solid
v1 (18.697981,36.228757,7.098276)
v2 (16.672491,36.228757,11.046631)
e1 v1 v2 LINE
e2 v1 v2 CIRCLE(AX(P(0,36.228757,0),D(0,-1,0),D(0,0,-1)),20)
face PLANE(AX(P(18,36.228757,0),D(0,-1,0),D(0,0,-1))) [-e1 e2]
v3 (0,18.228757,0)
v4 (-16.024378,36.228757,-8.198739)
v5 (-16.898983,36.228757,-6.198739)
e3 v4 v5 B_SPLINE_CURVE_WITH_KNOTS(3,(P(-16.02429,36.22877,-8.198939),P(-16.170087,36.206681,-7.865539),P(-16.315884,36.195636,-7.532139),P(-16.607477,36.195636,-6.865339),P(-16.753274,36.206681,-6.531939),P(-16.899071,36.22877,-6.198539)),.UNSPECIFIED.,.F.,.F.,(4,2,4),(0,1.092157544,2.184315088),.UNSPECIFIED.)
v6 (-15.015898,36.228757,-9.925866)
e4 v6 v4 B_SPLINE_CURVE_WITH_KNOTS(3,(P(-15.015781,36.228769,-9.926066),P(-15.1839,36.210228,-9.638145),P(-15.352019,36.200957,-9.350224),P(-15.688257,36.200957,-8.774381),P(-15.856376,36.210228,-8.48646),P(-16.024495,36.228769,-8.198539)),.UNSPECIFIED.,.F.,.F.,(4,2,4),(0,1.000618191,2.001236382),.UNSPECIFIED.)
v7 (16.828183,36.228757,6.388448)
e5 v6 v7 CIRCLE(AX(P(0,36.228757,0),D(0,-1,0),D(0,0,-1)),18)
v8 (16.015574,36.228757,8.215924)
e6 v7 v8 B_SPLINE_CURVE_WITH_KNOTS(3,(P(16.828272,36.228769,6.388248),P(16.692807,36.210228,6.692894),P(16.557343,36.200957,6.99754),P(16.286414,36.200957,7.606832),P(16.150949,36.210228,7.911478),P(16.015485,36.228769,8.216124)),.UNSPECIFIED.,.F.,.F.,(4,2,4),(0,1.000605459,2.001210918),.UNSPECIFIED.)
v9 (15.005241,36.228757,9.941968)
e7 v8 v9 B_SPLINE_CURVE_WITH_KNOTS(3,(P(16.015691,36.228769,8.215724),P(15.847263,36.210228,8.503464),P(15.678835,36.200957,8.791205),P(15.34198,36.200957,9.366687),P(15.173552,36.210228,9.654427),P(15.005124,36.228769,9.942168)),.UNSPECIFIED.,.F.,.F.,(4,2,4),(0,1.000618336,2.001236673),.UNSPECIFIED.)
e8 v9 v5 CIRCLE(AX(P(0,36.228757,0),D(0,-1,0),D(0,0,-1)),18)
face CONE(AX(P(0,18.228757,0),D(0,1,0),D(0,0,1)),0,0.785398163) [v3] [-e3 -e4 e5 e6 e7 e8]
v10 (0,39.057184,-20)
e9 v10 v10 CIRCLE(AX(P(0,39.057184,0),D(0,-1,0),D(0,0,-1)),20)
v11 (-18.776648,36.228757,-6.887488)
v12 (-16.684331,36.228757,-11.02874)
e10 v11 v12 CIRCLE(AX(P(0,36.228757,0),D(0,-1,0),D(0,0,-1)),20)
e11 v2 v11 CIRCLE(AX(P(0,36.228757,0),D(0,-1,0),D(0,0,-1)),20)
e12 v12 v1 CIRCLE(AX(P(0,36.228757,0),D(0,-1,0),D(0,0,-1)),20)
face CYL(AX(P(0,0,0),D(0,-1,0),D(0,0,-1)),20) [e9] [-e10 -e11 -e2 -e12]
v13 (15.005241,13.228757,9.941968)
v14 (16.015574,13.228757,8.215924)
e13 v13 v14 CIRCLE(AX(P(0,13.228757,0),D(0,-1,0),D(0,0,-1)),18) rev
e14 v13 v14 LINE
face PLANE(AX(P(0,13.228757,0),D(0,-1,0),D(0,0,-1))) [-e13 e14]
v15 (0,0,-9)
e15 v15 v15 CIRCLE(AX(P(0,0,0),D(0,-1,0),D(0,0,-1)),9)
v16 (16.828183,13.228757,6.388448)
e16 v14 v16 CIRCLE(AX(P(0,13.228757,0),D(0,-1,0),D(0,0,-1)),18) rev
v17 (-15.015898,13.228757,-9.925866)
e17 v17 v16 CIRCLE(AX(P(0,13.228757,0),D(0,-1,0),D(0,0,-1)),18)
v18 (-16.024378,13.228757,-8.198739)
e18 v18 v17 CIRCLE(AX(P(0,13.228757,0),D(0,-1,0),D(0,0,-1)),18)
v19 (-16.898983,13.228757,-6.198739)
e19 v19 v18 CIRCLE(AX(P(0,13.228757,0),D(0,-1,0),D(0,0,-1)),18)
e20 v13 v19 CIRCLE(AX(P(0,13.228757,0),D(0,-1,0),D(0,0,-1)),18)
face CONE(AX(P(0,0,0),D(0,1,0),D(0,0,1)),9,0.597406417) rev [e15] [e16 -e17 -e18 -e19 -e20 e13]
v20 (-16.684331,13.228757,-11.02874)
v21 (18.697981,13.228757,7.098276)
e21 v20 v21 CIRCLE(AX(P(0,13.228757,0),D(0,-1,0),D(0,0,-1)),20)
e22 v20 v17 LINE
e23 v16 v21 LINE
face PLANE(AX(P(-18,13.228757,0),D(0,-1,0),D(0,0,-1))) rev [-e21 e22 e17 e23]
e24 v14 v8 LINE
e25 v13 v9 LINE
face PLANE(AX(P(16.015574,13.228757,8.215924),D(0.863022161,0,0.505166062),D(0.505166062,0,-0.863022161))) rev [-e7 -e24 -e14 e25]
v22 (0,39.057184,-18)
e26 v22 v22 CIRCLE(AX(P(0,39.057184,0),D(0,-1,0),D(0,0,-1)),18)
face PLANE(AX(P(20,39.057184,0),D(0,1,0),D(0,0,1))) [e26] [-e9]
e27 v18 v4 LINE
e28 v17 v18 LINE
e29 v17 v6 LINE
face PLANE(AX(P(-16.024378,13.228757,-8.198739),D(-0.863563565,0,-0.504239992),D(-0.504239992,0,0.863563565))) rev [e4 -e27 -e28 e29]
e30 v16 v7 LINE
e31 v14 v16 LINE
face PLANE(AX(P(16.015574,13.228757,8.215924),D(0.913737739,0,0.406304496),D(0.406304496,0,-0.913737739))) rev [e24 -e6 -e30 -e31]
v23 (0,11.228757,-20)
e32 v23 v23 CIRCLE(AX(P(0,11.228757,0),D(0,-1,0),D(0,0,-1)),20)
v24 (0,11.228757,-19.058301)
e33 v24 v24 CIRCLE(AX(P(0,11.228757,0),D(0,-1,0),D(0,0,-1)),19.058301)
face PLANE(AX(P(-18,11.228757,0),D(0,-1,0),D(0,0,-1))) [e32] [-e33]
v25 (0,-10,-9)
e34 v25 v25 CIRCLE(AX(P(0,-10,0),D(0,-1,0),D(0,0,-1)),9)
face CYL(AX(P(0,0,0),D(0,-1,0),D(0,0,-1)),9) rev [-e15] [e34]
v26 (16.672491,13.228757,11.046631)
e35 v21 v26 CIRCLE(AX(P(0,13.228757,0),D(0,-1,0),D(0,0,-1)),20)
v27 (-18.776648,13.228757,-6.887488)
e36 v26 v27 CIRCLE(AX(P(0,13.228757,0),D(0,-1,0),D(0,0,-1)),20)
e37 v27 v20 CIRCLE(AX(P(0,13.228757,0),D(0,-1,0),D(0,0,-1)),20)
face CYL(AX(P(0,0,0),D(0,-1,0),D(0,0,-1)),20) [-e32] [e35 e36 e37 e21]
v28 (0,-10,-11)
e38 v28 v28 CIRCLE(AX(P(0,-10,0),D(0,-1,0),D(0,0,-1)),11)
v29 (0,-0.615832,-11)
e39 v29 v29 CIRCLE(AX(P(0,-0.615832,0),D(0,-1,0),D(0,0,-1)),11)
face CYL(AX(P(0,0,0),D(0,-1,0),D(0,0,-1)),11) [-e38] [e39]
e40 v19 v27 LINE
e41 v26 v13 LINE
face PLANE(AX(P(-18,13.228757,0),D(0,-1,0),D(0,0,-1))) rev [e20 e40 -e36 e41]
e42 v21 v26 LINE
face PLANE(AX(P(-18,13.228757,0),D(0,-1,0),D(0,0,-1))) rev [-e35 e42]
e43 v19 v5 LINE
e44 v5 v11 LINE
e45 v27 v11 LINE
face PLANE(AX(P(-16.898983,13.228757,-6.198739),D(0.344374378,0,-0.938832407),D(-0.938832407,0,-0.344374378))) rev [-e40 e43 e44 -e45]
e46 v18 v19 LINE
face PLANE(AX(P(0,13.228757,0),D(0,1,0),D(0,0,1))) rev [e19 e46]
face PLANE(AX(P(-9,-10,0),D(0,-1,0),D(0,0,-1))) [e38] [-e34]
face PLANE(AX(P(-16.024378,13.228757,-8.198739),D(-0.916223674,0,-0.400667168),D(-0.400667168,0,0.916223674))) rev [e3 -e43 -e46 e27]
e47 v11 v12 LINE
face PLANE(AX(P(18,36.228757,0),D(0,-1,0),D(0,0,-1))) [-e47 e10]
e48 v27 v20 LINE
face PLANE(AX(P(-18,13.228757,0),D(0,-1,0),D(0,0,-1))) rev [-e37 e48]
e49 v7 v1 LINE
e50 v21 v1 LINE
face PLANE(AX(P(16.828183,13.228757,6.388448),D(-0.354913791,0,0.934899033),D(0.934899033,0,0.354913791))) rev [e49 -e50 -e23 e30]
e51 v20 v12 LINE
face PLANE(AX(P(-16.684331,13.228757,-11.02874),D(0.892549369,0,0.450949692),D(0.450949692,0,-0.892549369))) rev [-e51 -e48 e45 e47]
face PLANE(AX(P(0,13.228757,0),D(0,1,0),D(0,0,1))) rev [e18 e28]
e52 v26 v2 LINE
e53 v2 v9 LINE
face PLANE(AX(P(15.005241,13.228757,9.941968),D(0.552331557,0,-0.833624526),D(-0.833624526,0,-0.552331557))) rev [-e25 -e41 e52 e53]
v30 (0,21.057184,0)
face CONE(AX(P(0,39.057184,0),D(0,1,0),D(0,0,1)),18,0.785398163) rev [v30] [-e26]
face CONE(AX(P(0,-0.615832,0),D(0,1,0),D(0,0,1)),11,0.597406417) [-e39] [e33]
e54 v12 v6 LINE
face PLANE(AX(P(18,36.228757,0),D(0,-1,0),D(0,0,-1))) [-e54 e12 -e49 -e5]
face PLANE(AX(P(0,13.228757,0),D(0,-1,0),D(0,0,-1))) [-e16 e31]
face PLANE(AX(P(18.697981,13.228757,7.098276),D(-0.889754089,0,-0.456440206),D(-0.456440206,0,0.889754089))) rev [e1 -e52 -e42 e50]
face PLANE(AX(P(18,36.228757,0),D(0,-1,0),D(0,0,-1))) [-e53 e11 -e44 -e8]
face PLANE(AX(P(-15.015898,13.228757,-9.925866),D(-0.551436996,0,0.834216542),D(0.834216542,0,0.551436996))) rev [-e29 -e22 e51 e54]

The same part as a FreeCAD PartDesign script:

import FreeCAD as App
import Part
import Sketcher
Q = App.Units.Quantity

doc = App.newDocument("Part")
body = doc.addObject("PartDesign::Body", "Body")

# Sketch on XY plane
sketch1 = doc.addObject("Sketcher::SketchObject", "Sketch")
body.addObject(sketch1)
sketch1.AttachmentSupport = (doc.XY_Plane, [""])
sketch1.MapMode = "FlatFace"
sketch1.addGeometry(Part.LineSegment(App.Vector(-18, 13.2, 0), App.Vector(-20, 13.2, 0)), False)
sketch1.addGeometry(Part.LineSegment(App.Vector(-20, 13.2, 0), App.Vector(-20, 11.2, 0)), False)
sketch1.addGeometry(Part.LineSegment(App.Vector(-20, 11.2, 0), App.Vector(-19.1, 11.2, 0)), False)
sketch1.addGeometry(Part.LineSegment(App.Vector(-19.1, 11.2, 0), App.Vector(-11, -0.6, 0)), False)
sketch1.addGeometry(Part.LineSegment(App.Vector(-11, -0.6, 0), App.Vector(-11, -10, 0)), False)
sketch1.addGeometry(Part.LineSegment(App.Vector(-11, -10, 0), App.Vector(-9, -10, 0)), False)
sketch1.addGeometry(Part.LineSegment(App.Vector(-9, -10, 0), App.Vector(-9, 0, 0)), False)
sketch1.addGeometry(Part.LineSegment(App.Vector(-9, 0, 0), App.Vector(-18, 13.2, 0)), False)
sketch1.addConstraint(Sketcher.Constraint("Coincident", 0, 2, 1, 1))
sketch1.addConstraint(Sketcher.Constraint("Coincident", 1, 2, 2, 1))
sketch1.addConstraint(Sketcher.Constraint("Coincident", 2, 2, 3, 1))
sketch1.addConstraint(Sketcher.Constraint("Coincident", 3, 2, 4, 1))
sketch1.addConstraint(Sketcher.Constraint("Coincident", 4, 2, 5, 1))
sketch1.addConstraint(Sketcher.Constraint("Coincident", 5, 2, 6, 1))
sketch1.addConstraint(Sketcher.Constraint("Coincident", 6, 2, 7, 1))
sketch1.addConstraint(Sketcher.Constraint("Coincident", 7, 2, 0, 1))
sketch1.addConstraint(Sketcher.Constraint("Horizontal", 0))
sketch1.addConstraint(Sketcher.Constraint("Vertical", 1))
sketch1.addConstraint(Sketcher.Constraint("Horizontal", 2))
sketch1.addConstraint(Sketcher.Constraint("Vertical", 4))
sketch1.addConstraint(Sketcher.Constraint("Horizontal", 5))
sketch1.addConstraint(Sketcher.Constraint("Vertical", 6))
sketch1.addConstraint(Sketcher.Constraint("PointOnObject", 6, 2, -1))
sketch1.addConstraint(Sketcher.Constraint("Parallel", 3, 7))
sketch1.addConstraint(Sketcher.Constraint("Equal", 0, 5))
sketch1.addConstraint(Sketcher.Constraint("Equal", 5, 1))
sketch1.addConstraint(Sketcher.Constraint("DistanceX", 0, 2, 0, 1, Q("2 mm")))
sketch1.addConstraint(Sketcher.Constraint("DistanceY", 6, 1, 6, 2, Q("10 mm")))
sketch1.addConstraint(Sketcher.Constraint("Distance", 7, Q("16 mm")))
sketch1.addConstraint(Sketcher.Constraint("DistanceX", 0, 2, -1, 1, Q("20 mm")))
sketch1.addConstraint(Sketcher.Constraint("DistanceX", 3, 2, -1, 1, Q("11 mm")))
sketch1.addConstraint(Sketcher.Constraint("DistanceX", 2, 1, 2, 2, Q("0.941699 mm")))
revolution = doc.addObject("PartDesign::Revolution", "Revolution")
body.addObject(revolution)
revolution.Profile = sketch1
revolution.ReferenceAxis = (sketch1, ["V_Axis"])
revolution.Angle = 360
body2 = doc.addObject("PartDesign::Body", "Body001")

# Sketch on XY plane
sketch2 = doc.addObject("Sketcher::SketchObject", "Sketch001")
body2.addObject(sketch2)
sketch2.AttachmentSupport = (doc.getObject("XY_Plane001"), [""])
sketch2.MapMode = "FlatFace"
sketch2.addGeometry(Part.LineSegment(App.Vector(0, 18.2, 0), App.Vector(18, 36.2, 0)), False)
sketch2.addGeometry(Part.LineSegment(App.Vector(18, 36.2, 0), App.Vector(20, 36.2, 0)), False)
sketch2.addGeometry(Part.LineSegment(App.Vector(20, 36.2, 0), App.Vector(20, 39.1, 0)), False)
sketch2.addGeometry(Part.LineSegment(App.Vector(20, 39.1, 0), App.Vector(18, 39.1, 0)), False)
sketch2.addGeometry(Part.LineSegment(App.Vector(18, 39.1, 0), App.Vector(0, 21.1, 0)), False)
sketch2.addGeometry(Part.LineSegment(App.Vector(0, 21.1, 0), App.Vector(0, 18.2, 0)), False)
sketch2.addConstraint(Sketcher.Constraint("Coincident", 0, 2, 1, 1))
sketch2.addConstraint(Sketcher.Constraint("Coincident", 1, 2, 2, 1))
sketch2.addConstraint(Sketcher.Constraint("Coincident", 2, 2, 3, 1))
sketch2.addConstraint(Sketcher.Constraint("Coincident", 3, 2, 4, 1))
sketch2.addConstraint(Sketcher.Constraint("Coincident", 4, 2, 5, 1))
sketch2.addConstraint(Sketcher.Constraint("Coincident", 5, 2, 0, 1))
sketch2.addConstraint(Sketcher.Constraint("Horizontal", 1))
sketch2.addConstraint(Sketcher.Constraint("Vertical", 2))
sketch2.addConstraint(Sketcher.Constraint("Horizontal", 3))
sketch2.addConstraint(Sketcher.Constraint("Vertical", 5))
sketch2.addConstraint(Sketcher.Constraint("PointOnObject", 4, 2, -2))
sketch2.addConstraint(Sketcher.Constraint("Parallel", 0, 4))
sketch2.addConstraint(Sketcher.Constraint("Vertical", 0, 2, 3, 2))
sketch2.addConstraint(Sketcher.Constraint("DistanceX", 1, 1, 1, 2, Q("2 mm")))
sketch2.addConstraint(Sketcher.Constraint("Angle", 0, Q("45 deg")))
sketch2.addConstraint(Sketcher.Constraint("DistanceX", -1, 1, 0, 2, Q("18 mm")))
sketch2.addConstraint(Sketcher.Constraint("DistanceY", 2, 1, 2, 2, Q("2.828427 mm")))
sketch2.addConstraint(Sketcher.Constraint("DistanceY", -1, 1, 0, 2, Q("36.228757 mm")))
revolution2 = doc.addObject("PartDesign::Revolution", "Revolution001")
body2.addObject(revolution2)
revolution2.Profile = sketch2
revolution2.ReferenceAxis = (sketch2, ["V_Axis"])
revolution2.Angle = 360
body.AllowCompound = True
doc.recompute()

boolean = doc.addObject("PartDesign::Boolean", "Boolean")
body.addObject(boolean)
boolean.Type = "Fuse"
boolean.addObjects([body2])

# Sketch on XZ plane
sketch3 = doc.addObject("Sketcher::SketchObject", "Sketch002")
body.addObject(sketch3)
sketch3.AttachmentSupport = (doc.XZ_Plane, [""])
sketch3.MapMode = "FlatFace"
sketch3.AttachmentOffset = App.Placement(App.Vector(0, 0, -36.228757), App.Rotation())
sketch3.addGeometry(Part.LineSegment(App.Vector(-16, -8.2, 0), App.Vector(-16.9, -6.2, 0)), False)
sketch3.addGeometry(Part.LineSegment(App.Vector(-16.9, -6.2, 0), App.Vector(-18.8, -6.9, 0)), False)
sketch3.addGeometry(Part.LineSegment(App.Vector(-18.8, -6.9, 0), App.Vector(-16.7, -11, 0)), False)
sketch3.addGeometry(Part.LineSegment(App.Vector(-16.7, -11, 0), App.Vector(-15, -9.9, 0)), False)
sketch3.addGeometry(Part.LineSegment(App.Vector(-15, -9.9, 0), App.Vector(-16, -8.2, 0)), False)
sketch3.addGeometry(Part.LineSegment(App.Vector(15, 9.9, 0), App.Vector(16, 8.2, 0)), False)
sketch3.addGeometry(Part.LineSegment(App.Vector(16, 8.2, 0), App.Vector(16.8, 6.4, 0)), False)
sketch3.addGeometry(Part.LineSegment(App.Vector(16.8, 6.4, 0), App.Vector(18.7, 7.1, 0)), False)
sketch3.addGeometry(Part.LineSegment(App.Vector(18.7, 7.1, 0), App.Vector(16.7, 11, 0)), False)
sketch3.addGeometry(Part.LineSegment(App.Vector(16.7, 11, 0), App.Vector(15, 9.9, 0)), False)
sketch3.addConstraint(Sketcher.Constraint("Coincident", 0, 2, 1, 1))
sketch3.addConstraint(Sketcher.Constraint("Coincident", 1, 2, 2, 1))
sketch3.addConstraint(Sketcher.Constraint("Coincident", 2, 2, 3, 1))
sketch3.addConstraint(Sketcher.Constraint("Coincident", 3, 2, 4, 1))
sketch3.addConstraint(Sketcher.Constraint("Coincident", 4, 2, 0, 1))
sketch3.addConstraint(Sketcher.Constraint("Coincident", 5, 2, 6, 1))
sketch3.addConstraint(Sketcher.Constraint("Coincident", 6, 2, 7, 1))
sketch3.addConstraint(Sketcher.Constraint("Coincident", 7, 2, 8, 1))
sketch3.addConstraint(Sketcher.Constraint("Coincident", 8, 2, 9, 1))
sketch3.addConstraint(Sketcher.Constraint("Coincident", 9, 2, 5, 1))
sketch3.addConstraint(Sketcher.Constraint("Equal", 1, 3))
sketch3.addConstraint(Sketcher.Constraint("Equal", 3, 4))
sketch3.addConstraint(Sketcher.Constraint("Equal", 4, 5))
sketch3.addConstraint(Sketcher.Constraint("Equal", 5, 6))
sketch3.addConstraint(Sketcher.Constraint("Equal", 6, 7))
sketch3.addConstraint(Sketcher.Constraint("Equal", 7, 9))
sketch3.addConstraint(Sketcher.Constraint("Distance", 1, Q("2 mm")))
sketch3.addConstraint(Sketcher.Constraint("DistanceY", 4, 2, 0, 2, Q("2 mm")))
sketch3.addConstraint(Sketcher.Constraint("DistanceY", 2, 2, 0, 2, Q("4.830001 mm")))
sketch3.addConstraint(Sketcher.Constraint("DistanceX", 6, 2, 7, 2, Q("1.869798 mm")))
sketch3.addConstraint(Sketcher.Constraint("Distance", 8, Q("4.43758 mm")))
sketch3.addConstraint(Sketcher.Constraint("DistanceY", 0, 2, -1, 1, Q("6.198739 mm")))
sketch3.addConstraint(Sketcher.Constraint("DistanceX", 1, 2, -1, 1, Q("18.776648 mm")))
sketch3.addConstraint(Sketcher.Constraint("DistanceX", 2, 2, -1, 1, Q("16.684331 mm")))
sketch3.addConstraint(Sketcher.Constraint("DistanceY", -1, 1, 6, 2, Q("6.388448 mm")))
sketch3.addConstraint(Sketcher.Constraint("DistanceX", -1, 1, 7, 2, Q("18.697981 mm")))
sketch3.addConstraint(Sketcher.Constraint("DistanceX", -1, 1, 8, 2, Q("16.672491 mm")))
sketch3.addConstraint(Sketcher.Constraint("DistanceX", -1, 1, 9, 2, Q("15.005241 mm")))
sketch3.addConstraint(Sketcher.Constraint("DistanceY", 1, 2, 0, 2, Q("0.688749 mm")))
sketch3.addConstraint(Sketcher.Constraint("DistanceX", 1, 2, 3, 2, Q("3.76075 mm")))
pad1 = doc.addObject("PartDesign::Pad", "Pad")
body.addObject(pad1)
pad1.Profile = sketch3
pad1.Length = 23

doc.recompute()
